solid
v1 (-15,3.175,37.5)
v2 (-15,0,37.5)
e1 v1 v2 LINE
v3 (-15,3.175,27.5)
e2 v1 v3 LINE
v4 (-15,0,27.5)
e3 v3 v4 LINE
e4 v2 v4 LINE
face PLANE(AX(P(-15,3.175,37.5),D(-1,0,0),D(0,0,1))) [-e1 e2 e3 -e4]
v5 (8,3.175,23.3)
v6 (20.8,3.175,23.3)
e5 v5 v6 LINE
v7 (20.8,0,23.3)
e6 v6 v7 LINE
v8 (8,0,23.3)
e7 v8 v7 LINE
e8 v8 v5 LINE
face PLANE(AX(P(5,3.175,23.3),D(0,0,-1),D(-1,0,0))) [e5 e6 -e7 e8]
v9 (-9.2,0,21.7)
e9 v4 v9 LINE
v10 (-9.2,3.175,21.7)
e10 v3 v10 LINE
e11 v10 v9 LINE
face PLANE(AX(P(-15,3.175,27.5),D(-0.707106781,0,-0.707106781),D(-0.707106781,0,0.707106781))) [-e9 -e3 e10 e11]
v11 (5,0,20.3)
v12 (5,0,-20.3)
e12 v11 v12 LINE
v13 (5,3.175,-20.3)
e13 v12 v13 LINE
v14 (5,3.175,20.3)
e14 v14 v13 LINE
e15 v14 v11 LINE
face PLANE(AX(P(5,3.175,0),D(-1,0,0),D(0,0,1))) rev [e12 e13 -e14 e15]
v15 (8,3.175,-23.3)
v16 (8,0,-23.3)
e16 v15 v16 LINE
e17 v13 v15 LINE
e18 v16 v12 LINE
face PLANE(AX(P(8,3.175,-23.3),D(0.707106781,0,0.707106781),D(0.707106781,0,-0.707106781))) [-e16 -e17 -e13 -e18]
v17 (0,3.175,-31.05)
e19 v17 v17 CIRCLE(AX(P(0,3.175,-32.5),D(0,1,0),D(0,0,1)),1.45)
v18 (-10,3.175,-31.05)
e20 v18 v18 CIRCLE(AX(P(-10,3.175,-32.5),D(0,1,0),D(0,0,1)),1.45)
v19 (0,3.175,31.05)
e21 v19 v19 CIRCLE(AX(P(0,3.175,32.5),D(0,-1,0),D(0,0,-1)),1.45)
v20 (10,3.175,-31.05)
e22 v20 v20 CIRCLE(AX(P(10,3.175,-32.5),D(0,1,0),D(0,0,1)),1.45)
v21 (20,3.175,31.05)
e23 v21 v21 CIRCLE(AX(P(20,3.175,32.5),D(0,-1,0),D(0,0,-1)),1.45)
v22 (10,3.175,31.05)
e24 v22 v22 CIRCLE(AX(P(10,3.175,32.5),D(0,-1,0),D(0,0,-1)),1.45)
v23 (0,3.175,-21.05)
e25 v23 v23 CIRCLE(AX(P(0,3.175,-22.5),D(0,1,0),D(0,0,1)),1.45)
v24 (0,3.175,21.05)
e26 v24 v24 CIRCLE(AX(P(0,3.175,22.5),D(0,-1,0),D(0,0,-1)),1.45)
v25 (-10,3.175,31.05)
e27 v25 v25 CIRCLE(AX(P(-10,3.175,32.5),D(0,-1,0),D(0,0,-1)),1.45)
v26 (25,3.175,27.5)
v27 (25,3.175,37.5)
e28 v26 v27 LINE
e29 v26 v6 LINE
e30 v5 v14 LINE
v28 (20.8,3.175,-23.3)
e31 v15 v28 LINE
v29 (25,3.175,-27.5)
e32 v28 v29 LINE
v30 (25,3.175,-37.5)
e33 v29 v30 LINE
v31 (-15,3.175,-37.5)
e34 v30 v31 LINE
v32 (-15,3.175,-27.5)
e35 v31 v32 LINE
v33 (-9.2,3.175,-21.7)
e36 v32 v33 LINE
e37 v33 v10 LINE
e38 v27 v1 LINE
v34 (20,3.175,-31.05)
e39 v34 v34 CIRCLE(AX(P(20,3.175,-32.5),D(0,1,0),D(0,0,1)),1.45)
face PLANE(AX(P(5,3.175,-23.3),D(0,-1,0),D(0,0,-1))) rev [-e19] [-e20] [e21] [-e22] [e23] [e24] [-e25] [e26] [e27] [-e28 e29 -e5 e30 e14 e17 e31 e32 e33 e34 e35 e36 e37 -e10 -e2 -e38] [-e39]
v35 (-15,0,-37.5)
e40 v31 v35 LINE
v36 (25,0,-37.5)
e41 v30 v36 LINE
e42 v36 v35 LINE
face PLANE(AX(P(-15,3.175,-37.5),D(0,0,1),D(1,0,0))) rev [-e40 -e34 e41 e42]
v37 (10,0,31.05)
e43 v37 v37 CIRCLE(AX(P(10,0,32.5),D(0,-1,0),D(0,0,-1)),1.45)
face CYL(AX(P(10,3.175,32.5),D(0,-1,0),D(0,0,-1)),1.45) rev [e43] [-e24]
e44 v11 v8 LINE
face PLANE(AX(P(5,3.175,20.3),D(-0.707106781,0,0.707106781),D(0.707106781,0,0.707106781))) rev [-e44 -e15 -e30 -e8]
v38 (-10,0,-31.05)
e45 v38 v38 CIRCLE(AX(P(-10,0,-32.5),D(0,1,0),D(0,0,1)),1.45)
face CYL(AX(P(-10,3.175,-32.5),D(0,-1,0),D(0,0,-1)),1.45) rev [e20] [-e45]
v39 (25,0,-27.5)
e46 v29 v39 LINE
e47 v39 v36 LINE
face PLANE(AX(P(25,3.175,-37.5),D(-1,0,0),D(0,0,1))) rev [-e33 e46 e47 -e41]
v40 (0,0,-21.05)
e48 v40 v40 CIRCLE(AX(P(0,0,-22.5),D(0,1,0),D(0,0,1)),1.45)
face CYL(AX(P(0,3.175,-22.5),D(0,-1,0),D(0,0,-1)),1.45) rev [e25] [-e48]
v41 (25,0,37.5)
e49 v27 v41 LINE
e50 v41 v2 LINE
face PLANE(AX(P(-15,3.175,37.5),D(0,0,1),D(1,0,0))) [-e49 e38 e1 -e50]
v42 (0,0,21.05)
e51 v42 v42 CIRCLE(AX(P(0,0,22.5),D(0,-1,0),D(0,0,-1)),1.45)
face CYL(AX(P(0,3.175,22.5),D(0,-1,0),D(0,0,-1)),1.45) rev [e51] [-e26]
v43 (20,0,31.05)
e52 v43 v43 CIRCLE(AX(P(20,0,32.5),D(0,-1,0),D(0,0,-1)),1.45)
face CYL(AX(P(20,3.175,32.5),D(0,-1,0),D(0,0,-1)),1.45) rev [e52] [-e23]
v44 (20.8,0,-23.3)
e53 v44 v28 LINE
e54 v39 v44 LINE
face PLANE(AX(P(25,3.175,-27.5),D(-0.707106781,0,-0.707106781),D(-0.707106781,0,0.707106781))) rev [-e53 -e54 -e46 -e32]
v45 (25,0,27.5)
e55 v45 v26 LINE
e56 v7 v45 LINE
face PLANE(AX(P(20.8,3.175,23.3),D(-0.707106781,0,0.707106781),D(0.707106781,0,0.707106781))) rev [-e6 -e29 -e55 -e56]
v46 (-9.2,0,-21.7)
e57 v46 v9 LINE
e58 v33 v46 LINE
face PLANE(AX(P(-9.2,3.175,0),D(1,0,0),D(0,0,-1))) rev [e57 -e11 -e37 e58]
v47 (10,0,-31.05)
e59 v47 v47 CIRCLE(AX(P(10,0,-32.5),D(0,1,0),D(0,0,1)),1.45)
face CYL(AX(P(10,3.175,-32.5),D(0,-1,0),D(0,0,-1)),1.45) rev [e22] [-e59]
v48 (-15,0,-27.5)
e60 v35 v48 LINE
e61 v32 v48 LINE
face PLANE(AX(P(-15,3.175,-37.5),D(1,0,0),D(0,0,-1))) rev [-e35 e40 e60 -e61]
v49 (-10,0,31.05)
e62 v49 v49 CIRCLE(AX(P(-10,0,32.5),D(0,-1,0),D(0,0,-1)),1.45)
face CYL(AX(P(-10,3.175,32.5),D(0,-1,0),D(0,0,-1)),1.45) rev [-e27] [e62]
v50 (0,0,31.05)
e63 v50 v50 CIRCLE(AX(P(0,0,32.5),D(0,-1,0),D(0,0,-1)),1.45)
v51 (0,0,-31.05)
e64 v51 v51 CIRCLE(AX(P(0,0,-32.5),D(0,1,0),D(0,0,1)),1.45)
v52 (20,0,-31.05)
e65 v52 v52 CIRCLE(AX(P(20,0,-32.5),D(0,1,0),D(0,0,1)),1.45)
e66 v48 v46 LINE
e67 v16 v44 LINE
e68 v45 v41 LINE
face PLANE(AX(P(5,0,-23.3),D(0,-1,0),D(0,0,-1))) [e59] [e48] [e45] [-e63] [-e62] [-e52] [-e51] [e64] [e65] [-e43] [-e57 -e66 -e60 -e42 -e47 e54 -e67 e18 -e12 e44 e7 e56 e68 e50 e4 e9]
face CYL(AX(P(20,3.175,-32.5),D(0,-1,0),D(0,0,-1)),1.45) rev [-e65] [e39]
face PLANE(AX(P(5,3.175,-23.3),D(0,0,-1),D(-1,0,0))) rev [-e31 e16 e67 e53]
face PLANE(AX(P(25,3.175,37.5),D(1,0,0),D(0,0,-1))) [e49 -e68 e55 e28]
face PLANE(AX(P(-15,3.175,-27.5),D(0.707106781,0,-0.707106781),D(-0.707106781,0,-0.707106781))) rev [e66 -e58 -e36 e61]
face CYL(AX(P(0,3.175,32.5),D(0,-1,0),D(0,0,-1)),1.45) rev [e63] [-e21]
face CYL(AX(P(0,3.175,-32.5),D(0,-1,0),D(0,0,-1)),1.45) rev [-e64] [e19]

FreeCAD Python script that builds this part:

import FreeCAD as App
import Part
import Sketcher
Q = App.Units.Quantity


def edges_at(feature, points):
    """Names of the edges that pass closest to the given points."""
    edges = feature.Shape.Edges
    near = lambda p: min(range(len(edges)), key=lambda i: edges[i].distToShape(Part.Vertex(*p))[0])
    return sorted({f"Edge{near(p) + 1}" for p in points})


def add_polygon(sketch, points):
    """Adds a closed chain of lines whose ends are joined by coincident constraints."""
    first, n = sketch.GeometryCount, len(points)
    for a, b in zip(points, points[1:] + points[:1]):
        sketch.addGeometry(Part.LineSegment(App.Vector(*a, 0), App.Vector(*b, 0)), False)
    for i in range(n):
        sketch.addConstraint(Sketcher.Constraint("Coincident", first + i, 2, first + (i + 1) % n, 1))

doc = App.newDocument("Part")
params = doc.addObject("Spreadsheet::Sheet", "Params")
for row, (alias, value) in enumerate([
    ("sketch1_diameter", "2.9 mm"),
    ("sketch1_width", "20 mm"),
    ("sketch1_width2", "40 mm"),
    ("sketch1_height", "10 mm"),
    ("sketch1_width3", "14.2 mm"),
    ("pad1_length", "3.175 mm"),
    ("chamfer_size", "4.2 mm"),
    ("chamfer2_size", "3 mm"),
], start=1):
    params.set(f"A{row}", alias)
    params.set(f"B{row}", "=" + value)
    params.setAlias(f"B{row}", alias)

body = doc.addObject("PartDesign::Body", "Body")

# Sketch on XZ plane
sketch1 = doc.addObject("Sketcher::SketchObject", "Sketch")
body.addObject(sketch1)
sketch1.AttachmentSupport = (doc.XZ_Plane, [""])
sketch1.MapMode = "FlatFace"
add_polygon(sketch1, [(5, -23.3), (25, -23.3), (25, -37.5), (-15, -37.5), (-15, -27.5), (-9.2, -21.7), (-9.2, 0), (5, 0)])  # lines 0-7
sketch1.addGeometry(Part.Circle(App.Vector(0, -22.5, 0), App.Vector(0, 0, 1), 1.4), False)  # 8
sketch1.addGeometry(Part.Circle(App.Vector(-10, -32.5, 0), App.Vector(0, 0, 1), 1.4), False)  # 9
sketch1.addGeometry(Part.Circle(App.Vector(0, -32.5, 0), App.Vector(0, 0, 1), 1.4), False)  # 10
sketch1.addGeometry(Part.Circle(App.Vector(10, -32.5, 0), App.Vector(0, 0, 1), 1.4), False)  # 11
sketch1.addGeometry(Part.Circle(App.Vector(20, -32.5, 0), App.Vector(0, 0, 1), 1.4), False)  # 12
sketch1.addConstraint([
    Sketcher.Constraint("Horizontal", 0),
    Sketcher.Constraint("Vertical", 1),
    Sketcher.Constraint("Horizontal", 2),
    Sketcher.Constraint("Vertical", 3),
    Sketcher.Constraint("Vertical", 5),
    Sketcher.Constraint("Horizontal", 6),
    Sketcher.Constraint("Vertical", 7),
    Sketcher.Constraint("Equal", 8, 9),
    Sketcher.Constraint("Equal", 9, 10),
    Sketcher.Constraint("Equal", 10, 11),
    Sketcher.Constraint("Equal", 11, 12),
    Sketcher.Constraint("Symmetric", 9, 3, 11, 3, -2),
    Sketcher.Constraint("PointOnObject", 8, 3, -2),
    Sketcher.Constraint("PointOnObject", 10, 3, -2),
    Sketcher.Constraint("PointOnObject", 5, 2, -1),
    Sketcher.Constraint("Horizontal", 9, 3, 10, 3),
    Sketcher.Constraint("Horizontal", 11, 3, 12, 3),
    Sketcher.Constraint("Equal", 6, 1),
    Sketcher.Constraint("Diameter", 8, Q("2.9 mm")),
    Sketcher.Constraint("DistanceX", 0, 1, 0, 2, Q("20 mm")),
    Sketcher.Constraint("DistanceX", 2, 2, 2, 1, Q("40 mm")),
    Sketcher.Constraint("DistanceY", 3, 1, 3, 2, Q("10 mm")),
    Sketcher.Constraint("Angle", 4, Q("45 deg")),
    Sketcher.Constraint("DistanceX", 6, 1, 6, 2, Q("14.2 mm")),
    Sketcher.Constraint("DistanceY", 5, 1, 5, 2, Q("21.7 mm")),
    Sketcher.Constraint("DistanceX", 9, 3, -1, 1, Q("10 mm")),
    Sketcher.Constraint("DistanceX", -1, 1, 12, 3, Q("20 mm")),
    Sketcher.Constraint("DistanceX", -1, 1, 0, 2, Q("25 mm")),
    Sketcher.Constraint("DistanceY", 9, 3, 8, 3, Q("10 mm")),
    Sketcher.Constraint("DistanceY", 1, 2, 12, 3, Q("5 mm")),
])
sketch1.setExpression("Constraints[26]", "Params.sketch1_diameter")
sketch1.setExpression("Constraints[27]", "Params.sketch1_width")
sketch1.setExpression("Constraints[28]", "Params.sketch1_width2")
sketch1.setExpression("Constraints[29]", "Params.sketch1_height")
sketch1.setExpression("Constraints[31]", "Params.sketch1_width3")
pad1 = doc.addObject("PartDesign::Pad", "Pad")
body.addObject(pad1)
pad1.Profile = sketch1
pad1.setExpression("Length", "Params.pad1_length")
pad1.Reversed = True
doc.recompute()

mirrored = doc.addObject("PartDesign::Mirrored", "Mirrored")
body.addObject(mirrored)
mirrored.Originals = [pad1]
mirrored.MirrorPlane = (doc.XY_Plane, [""])
body.Tip = mirrored
doc.recompute()

chamfer = doc.addObject("PartDesign::Chamfer", "Chamfer")
body.addObject(chamfer)
chamfer.Base = (mirrored, edges_at(mirrored, [(25, 1.587, -23.3), (25, 1.587, 23.3)]))
chamfer.setExpression("Size", "Params.chamfer_size")
doc.recompute()

chamfer2 = doc.addObject("PartDesign::Chamfer", "Chamfer001")
body.addObject(chamfer2)
chamfer2.Base = (chamfer, edges_at(chamfer, [(5, 1.587, -23.3), (5, 1.587, 23.3)]))
chamfer2.setExpression("Size", "Params.chamfer2_size")

doc.recompute()
